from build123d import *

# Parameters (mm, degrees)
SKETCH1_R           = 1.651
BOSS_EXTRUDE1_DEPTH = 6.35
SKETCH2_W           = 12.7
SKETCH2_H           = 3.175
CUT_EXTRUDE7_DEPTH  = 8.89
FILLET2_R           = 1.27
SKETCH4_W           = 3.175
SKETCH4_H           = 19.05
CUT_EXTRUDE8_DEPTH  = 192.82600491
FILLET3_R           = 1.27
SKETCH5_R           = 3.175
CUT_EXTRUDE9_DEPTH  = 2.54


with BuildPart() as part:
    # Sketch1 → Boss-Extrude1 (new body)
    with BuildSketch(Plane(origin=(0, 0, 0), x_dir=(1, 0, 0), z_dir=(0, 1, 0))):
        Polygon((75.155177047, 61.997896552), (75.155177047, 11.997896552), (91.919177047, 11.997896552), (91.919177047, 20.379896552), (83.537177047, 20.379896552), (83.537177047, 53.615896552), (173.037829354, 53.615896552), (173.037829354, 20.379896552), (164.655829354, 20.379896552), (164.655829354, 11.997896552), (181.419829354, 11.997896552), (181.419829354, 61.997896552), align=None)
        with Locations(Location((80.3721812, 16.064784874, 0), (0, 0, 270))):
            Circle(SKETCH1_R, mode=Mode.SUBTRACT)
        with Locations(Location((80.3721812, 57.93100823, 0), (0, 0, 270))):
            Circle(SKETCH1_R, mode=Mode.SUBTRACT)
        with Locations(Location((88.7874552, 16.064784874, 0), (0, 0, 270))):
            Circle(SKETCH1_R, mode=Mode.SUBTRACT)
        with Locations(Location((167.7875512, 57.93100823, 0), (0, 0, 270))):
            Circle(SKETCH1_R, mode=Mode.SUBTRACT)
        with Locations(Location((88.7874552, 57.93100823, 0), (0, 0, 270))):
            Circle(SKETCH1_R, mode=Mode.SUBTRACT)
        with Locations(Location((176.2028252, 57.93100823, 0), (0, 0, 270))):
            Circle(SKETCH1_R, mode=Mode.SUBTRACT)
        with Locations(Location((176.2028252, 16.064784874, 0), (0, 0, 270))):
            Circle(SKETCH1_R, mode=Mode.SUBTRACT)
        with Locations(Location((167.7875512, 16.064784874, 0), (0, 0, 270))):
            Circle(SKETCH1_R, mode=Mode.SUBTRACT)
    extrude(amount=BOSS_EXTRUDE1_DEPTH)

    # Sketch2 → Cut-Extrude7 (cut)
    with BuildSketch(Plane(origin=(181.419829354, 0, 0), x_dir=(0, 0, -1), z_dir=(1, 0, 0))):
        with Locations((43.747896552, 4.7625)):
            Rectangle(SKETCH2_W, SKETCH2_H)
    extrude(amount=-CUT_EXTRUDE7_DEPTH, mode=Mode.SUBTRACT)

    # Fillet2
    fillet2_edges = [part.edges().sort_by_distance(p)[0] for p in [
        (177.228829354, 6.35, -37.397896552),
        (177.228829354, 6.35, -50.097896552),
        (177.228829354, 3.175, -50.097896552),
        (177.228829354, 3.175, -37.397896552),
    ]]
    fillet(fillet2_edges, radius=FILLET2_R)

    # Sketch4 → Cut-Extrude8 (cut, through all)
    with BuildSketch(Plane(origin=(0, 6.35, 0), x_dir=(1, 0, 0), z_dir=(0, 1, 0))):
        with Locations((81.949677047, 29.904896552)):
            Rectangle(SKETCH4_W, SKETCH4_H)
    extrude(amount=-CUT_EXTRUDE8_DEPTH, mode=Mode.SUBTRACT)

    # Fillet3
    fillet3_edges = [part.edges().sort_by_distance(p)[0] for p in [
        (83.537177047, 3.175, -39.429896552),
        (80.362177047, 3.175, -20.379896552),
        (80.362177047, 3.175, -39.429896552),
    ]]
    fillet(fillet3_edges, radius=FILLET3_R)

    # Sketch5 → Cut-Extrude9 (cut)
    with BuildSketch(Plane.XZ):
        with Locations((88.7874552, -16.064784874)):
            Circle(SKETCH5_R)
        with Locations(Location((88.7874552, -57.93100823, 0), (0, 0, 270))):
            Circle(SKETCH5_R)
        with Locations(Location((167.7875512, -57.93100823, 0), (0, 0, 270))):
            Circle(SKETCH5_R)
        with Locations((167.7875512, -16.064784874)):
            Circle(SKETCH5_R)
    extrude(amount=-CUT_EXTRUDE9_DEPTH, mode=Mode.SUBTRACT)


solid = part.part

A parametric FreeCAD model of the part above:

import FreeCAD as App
import Part
import Sketcher

V = App.Vector
Q = App.Units.Quantity


def edges_at(feature, points):
    """Names of the edges that pass closest to the given points."""
    edges = feature.Shape.Edges
    near = lambda p: min(range(len(edges)), key=lambda i: edges[i].distToShape(Part.Vertex(*p))[0])
    return sorted({f"Edge{near(p) + 1}" for p in points})

doc = App.newDocument("Part")
body = doc.addObject("PartDesign::Body", "Body")

# Sketch on XZ plane
sketch1 = body.newObject("Sketcher::SketchObject", "Sketch")
sketch1.AttachmentSupport = (doc.getObject("XZ_Plane"), [""])
sketch1.MapMode = "FlatFace"
sketch1.addGeometry([
    Part.LineSegment(V(75.155177, -61.997897, 0), V(75.155177, -11.997897, 0)),  # 0
    Part.LineSegment(V(75.155177, -11.997897, 0), V(91.919177, -11.997897, 0)),  # 1
    Part.LineSegment(V(91.919177, -11.997897, 0), V(91.919177, -20.379897, 0)),  # 2
    Part.LineSegment(V(91.919177, -20.379897, 0), V(83.537177, -20.379897, 0)),  # 3
    Part.LineSegment(V(83.537177, -20.379897, 0), V(83.537177, -53.615897, 0)),  # 4
    Part.LineSegment(V(83.537177, -53.615897, 0), V(173.037829, -53.615897, 0)),  # 5
    Part.LineSegment(V(173.037829, -53.615897, 0), V(173.037829, -20.379897, 0)),  # 6
    Part.LineSegment(V(173.037829, -20.379897, 0), V(164.655829, -20.379897, 0)),  # 7
    Part.LineSegment(V(164.655829, -20.379897, 0), V(164.655829, -11.997897, 0)),  # 8
    Part.LineSegment(V(164.655829, -11.997897, 0), V(181.419829, -11.997897, 0)),  # 9
    Part.LineSegment(V(181.419829, -11.997897, 0), V(181.419829, -61.997897, 0)),  # 10
    Part.LineSegment(V(181.419829, -61.997897, 0), V(75.155177, -61.997897, 0)),  # 11
    Part.Circle(V(80.372181, -16.064785, 0), V(0, 0, 1), 1.651),  # 12
    Part.Circle(V(88.787455, -16.064785, 0), V(0, 0, 1), 1.651),  # 13
    Part.Circle(V(167.787551, -16.064785, 0), V(0, 0, 1), 1.651),  # 14
    Part.Circle(V(176.202825, -16.064785, 0), V(0, 0, 1), 1.651),  # 15
    Part.Circle(V(80.372181, -57.931008, 0), V(0, 0, 1), 1.651),  # 16
    Part.Circle(V(88.787455, -57.931008, 0), V(0, 0, 1), 1.651),  # 17
    Part.Circle(V(167.787551, -57.931008, 0), V(0, 0, 1), 1.651),  # 18
    Part.Circle(V(176.202825, -57.931008, 0), V(0, 0, 1), 1.651),  # 19
], False)
sketch1.addConstraint([
    Sketcher.Constraint("Coincident", 0, 2, 1, 1),
    Sketcher.Constraint("Coincident", 1, 2, 2, 1),
    Sketcher.Constraint("Coincident", 2, 2, 3, 1),
    Sketcher.Constraint("Coincident", 3, 2, 4, 1),
    Sketcher.Constraint("Coincident", 4, 2, 5, 1),
    Sketcher.Constraint("Coincident", 5, 2, 6, 1),
    Sketcher.Constraint("Coincident", 6, 2, 7, 1),
    Sketcher.Constraint("Coincident", 7, 2, 8, 1),
    Sketcher.Constraint("Coincident", 8, 2, 9, 1),
    Sketcher.Constraint("Coincident", 9, 2, 10, 1),
    Sketcher.Constraint("Coincident", 10, 2, 11, 1),
    Sketcher.Constraint("Coincident", 11, 2, 0, 1),
    Sketcher.Constraint("Vertical", 0),
    Sketcher.Constraint("Horizontal", 1),
    Sketcher.Constraint("Vertical", 2),
    Sketcher.Constraint("Horizontal", 3),
    Sketcher.Constraint("Vertical", 4),
    Sketcher.Constraint("Horizontal", 5),
    Sketcher.Constraint("Vertical", 6),
    Sketcher.Constraint("Horizontal", 7),
    Sketcher.Constraint("Vertical", 8),
    Sketcher.Constraint("Horizontal", 9),
    Sketcher.Constraint("Vertical", 10),
    Sketcher.Constraint("Horizontal", 11),
    Sketcher.Constraint("Equal", 12, 13),
    Sketcher.Constraint("Equal", 13, 14),
    Sketcher.Constraint("Equal", 14, 15),
    Sketcher.Constraint("Equal", 15, 16),
    Sketcher.Constraint("Equal", 16, 17),
    Sketcher.Constraint("Equal", 17, 18),
    Sketcher.Constraint("Equal", 18, 19),
    Sketcher.Constraint("Horizontal", 12, 3, 13, 3),
    Sketcher.Constraint("Horizontal", 13, 3, 14, 3),
    Sketcher.Constraint("Horizontal", 14, 3, 15, 3),
    Sketcher.Constraint("Horizontal", 16, 3, 17, 3),
    Sketcher.Constraint("Horizontal", 17, 3, 18, 3),
    Sketcher.Constraint("Horizontal", 18, 3, 19, 3),
    Sketcher.Constraint("Horizontal", 3, 2, 6, 2),
    Sketcher.Constraint("Horizontal", 1, 2, 8, 2),
    Sketcher.Constraint("Vertical", 12, 3, 16, 3),
    Sketcher.Constraint("Vertical", 13, 3, 17, 3),
    Sketcher.Constraint("Vertical", 14, 3, 18, 3),
    Sketcher.Constraint("Vertical", 15, 3, 19, 3),
    Sketcher.Constraint("Equal", 3, 7),
    Sketcher.Constraint("Equal", 1, 9),
    Sketcher.Constraint("Equal", 7, 2),
    Sketcher.Constraint("Diameter", 12, Q("0.13 in")),
    Sketcher.Constraint("DistanceX", 1, 1, 1, 2, Q("0.66 in")),
    Sketcher.Constraint("DistanceX", 3, 2, 3, 1, Q("0.33 in")),
    Sketcher.Constraint("DistanceY", 10, 2, 5, 2, Q("0.33 in")),
    Sketcher.Constraint("DistanceY", 0, 1, 0, 2, 50.0),
    Sketcher.Constraint("DistanceX", 5, 1, 5, 2, 89.500652),
    Sketcher.Constraint("DistanceX", -1, 1, 12, 3, 80.372181),
    Sketcher.Constraint("DistanceX", -1, 1, 14, 3, 167.787551),
    Sketcher.Constraint("DistanceY", 16, 3, -1, 1, 57.931008),
    Sketcher.Constraint("DistanceX", -1, 1, 5, 2, 173.037829),
    Sketcher.Constraint("DistanceX", 13, 3, 15, 3, 87.41537),
    Sketcher.Constraint("DistanceY", 12, 3, 0, 2, 4.066888),
    Sketcher.Constraint("DistanceX", 0, 2, 13, 3, 13.632278),
    Sketcher.Constraint("DistanceY", 16, 3, 0, 2, 45.933112),
])
pad1 = body.newObject("PartDesign::Pad", "Pad")
pad1.Profile = sketch1
pad1.Length = Q("0.25 in")
pad1.Reversed = True

# Sketch on YZ plane
sketch2 = body.newObject("Sketcher::SketchObject", "Sketch001")
sketch2.AttachmentSupport = (doc.getObject("YZ_Plane"), [""])
sketch2.MapMode = "FlatFace"
sketch2.AttachmentOffset = App.Placement(V(0, 0, 181.419829), App.Rotation())
sketch2.addGeometry([
    Part.LineSegment(V(6.35, -37.397897, 0), V(3.175, -37.397897, 0)),
    Part.LineSegment(V(3.175, -37.397897, 0), V(3.175, -50.097897, 0)),
    Part.LineSegment(V(3.175, -50.097897, 0), V(6.35, -50.097897, 0)),
    Part.LineSegment(V(6.35, -50.097897, 0), V(6.35, -37.397897, 0)),
], False)
sketch2.addConstraint([
    Sketcher.Constraint("Coincident", 0, 2, 1, 1),
    Sketcher.Constraint("Coincident", 1, 2, 2, 1),
    Sketcher.Constraint("Coincident", 2, 2, 3, 1),
    Sketcher.Constraint("Coincident", 3, 2, 0, 1),
    Sketcher.Constraint("Horizontal", 0),
    Sketcher.Constraint("Vertical", 1),
    Sketcher.Constraint("Horizontal", 2),
    Sketcher.Constraint("Vertical", 3),
    Sketcher.Constraint("DistanceY", 1, 2, 1, 1, Q("0.5 in")),
    Sketcher.Constraint("DistanceX", 0, 2, 0, 1, Q("0.125 in")),
    Sketcher.Constraint("DistanceX", -1, 1, 2, 2, Q("0.25 in")),
    Sketcher.Constraint("DistanceY", 0, 2, -1, 1, 37.397897),
])
pocket1 = body.newObject("PartDesign::Pocket", "Pocket")
pocket1.Profile = sketch2
pocket1.Length = Q("0.35 in")
doc.recompute()

fillet = body.newObject("PartDesign::Fillet", "Fillet")
fillet.Base = (pocket1, edges_at(pocket1, [
    (177.229, 6.35, -37.398),
    (177.229, 6.35, -50.098),
    (177.229, 3.175, -50.098),
    (177.229, 3.175, -37.398),
]))
fillet.Radius = Q("0.05 in")

# Sketch on XZ plane
sketch3 = body.newObject("Sketcher::SketchObject", "Sketch002")
sketch3.AttachmentSupport = (doc.getObject("XZ_Plane"), [""])
sketch3.MapMode = "FlatFace"
sketch3.AttachmentOffset = App.Placement(V(0, 0, -0.25 * 25.4), App.Rotation())
sketch3.addGeometry([
    Part.LineSegment(V(80.362177, -39.429897, 0), V(80.362177, -20.379897, 0)),
    Part.LineSegment(V(80.362177, -20.379897, 0), V(83.537177, -20.379897, 0)),
    Part.LineSegment(V(83.537177, -20.379897, 0), V(83.537177, -39.429897, 0)),
    Part.LineSegment(V(83.537177, -39.429897, 0), V(80.362177, -39.429897, 0)),
], False)
sketch3.addConstraint([
    Sketcher.Constraint("Coincident", 0, 2, 1, 1),
    Sketcher.Constraint("Coincident", 1, 2, 2, 1),
    Sketcher.Constraint("Coincident", 2, 2, 3, 1),
    Sketcher.Constraint("Coincident", 3, 2, 0, 1),
    Sketcher.Constraint("Vertical", 0),
    Sketcher.Constraint("Horizontal", 1),
    Sketcher.Constraint("Vertical", 2),
    Sketcher.Constraint("Horizontal", 3),
    Sketcher.Constraint("DistanceY", 0, 1, 0, 2, Q("0.75 in")),
    Sketcher.Constraint("DistanceX", 1, 1, 1, 2, Q("0.125 in")),
    Sketcher.Constraint("DistanceX", -1, 1, 0, 2, 80.362177),
    Sketcher.Constraint("DistanceY", 0, 2, -1, 1, 20.379897),
])
pocket2 = body.newObject("PartDesign::Pocket", "Pocket001")
pocket2.Profile = sketch3
pocket2.Type = "ThroughAll"
pocket2.Reversed = True
doc.recompute()

fillet2 = body.newObject("PartDesign::Fillet", "Fillet001")
fillet2.Base = (pocket2, edges_at(pocket2, [(83.537, 3.175, -39.43), (80.362, 3.175, -20.38), (80.362, 3.175, -39.43)]))
fillet2.Radius = Q("0.05 in")

# Sketch on XZ plane
sketch4 = body.newObject("Sketcher::SketchObject", "Sketch003")
sketch4.AttachmentSupport = (doc.getObject("XZ_Plane"), [""])
sketch4.MapMode = "FlatFace"
sketch4.addGeometry([
    Part.Circle(V(88.787455, -16.064785, 0), V(0, 0, 1), 3.175),
    Part.Circle(V(88.787455, -57.931008, 0), V(0, 0, 1), 3.175),
    Part.Circle(V(167.787551, -57.931008, 0), V(0, 0, 1), 3.175),
    Part.Circle(V(167.787551, -16.064785, 0), V(0, 0, 1), 3.175),
], False)
sketch4.addConstraint([
    Sketcher.Constraint("Equal", 0, 1),
    Sketcher.Constraint("Equal", 1, 2),
    Sketcher.Constraint("Equal", 2, 3),
    Sketcher.Constraint("Horizontal", 1, 3, 2, 3),
    Sketcher.Constraint("Horizontal", 0, 3, 3, 3),
    Sketcher.Constraint("Vertical", 0, 3, 1, 3),
    Sketcher.Constraint("Vertical", 2, 3, 3, 3),
    Sketcher.Constraint("Diameter", 0, Q("0.25 in")),
    Sketcher.Constraint("DistanceY", 1, 3, -1, 1, 57.931008),
    Sketcher.Constraint("DistanceX", -1, 1, 2, 3, 167.787551),
    Sketcher.Constraint("DistanceX", -1, 1, 0, 3, 88.787455),
    Sketcher.Constraint("DistanceY", 0, 3, -1, 1, 16.064785),
])
pocket3 = body.newObject("PartDesign::Pocket", "Pocket002")
pocket3.Profile = sketch4
pocket3.Length = Q("0.1 in")

doc.recompute()
